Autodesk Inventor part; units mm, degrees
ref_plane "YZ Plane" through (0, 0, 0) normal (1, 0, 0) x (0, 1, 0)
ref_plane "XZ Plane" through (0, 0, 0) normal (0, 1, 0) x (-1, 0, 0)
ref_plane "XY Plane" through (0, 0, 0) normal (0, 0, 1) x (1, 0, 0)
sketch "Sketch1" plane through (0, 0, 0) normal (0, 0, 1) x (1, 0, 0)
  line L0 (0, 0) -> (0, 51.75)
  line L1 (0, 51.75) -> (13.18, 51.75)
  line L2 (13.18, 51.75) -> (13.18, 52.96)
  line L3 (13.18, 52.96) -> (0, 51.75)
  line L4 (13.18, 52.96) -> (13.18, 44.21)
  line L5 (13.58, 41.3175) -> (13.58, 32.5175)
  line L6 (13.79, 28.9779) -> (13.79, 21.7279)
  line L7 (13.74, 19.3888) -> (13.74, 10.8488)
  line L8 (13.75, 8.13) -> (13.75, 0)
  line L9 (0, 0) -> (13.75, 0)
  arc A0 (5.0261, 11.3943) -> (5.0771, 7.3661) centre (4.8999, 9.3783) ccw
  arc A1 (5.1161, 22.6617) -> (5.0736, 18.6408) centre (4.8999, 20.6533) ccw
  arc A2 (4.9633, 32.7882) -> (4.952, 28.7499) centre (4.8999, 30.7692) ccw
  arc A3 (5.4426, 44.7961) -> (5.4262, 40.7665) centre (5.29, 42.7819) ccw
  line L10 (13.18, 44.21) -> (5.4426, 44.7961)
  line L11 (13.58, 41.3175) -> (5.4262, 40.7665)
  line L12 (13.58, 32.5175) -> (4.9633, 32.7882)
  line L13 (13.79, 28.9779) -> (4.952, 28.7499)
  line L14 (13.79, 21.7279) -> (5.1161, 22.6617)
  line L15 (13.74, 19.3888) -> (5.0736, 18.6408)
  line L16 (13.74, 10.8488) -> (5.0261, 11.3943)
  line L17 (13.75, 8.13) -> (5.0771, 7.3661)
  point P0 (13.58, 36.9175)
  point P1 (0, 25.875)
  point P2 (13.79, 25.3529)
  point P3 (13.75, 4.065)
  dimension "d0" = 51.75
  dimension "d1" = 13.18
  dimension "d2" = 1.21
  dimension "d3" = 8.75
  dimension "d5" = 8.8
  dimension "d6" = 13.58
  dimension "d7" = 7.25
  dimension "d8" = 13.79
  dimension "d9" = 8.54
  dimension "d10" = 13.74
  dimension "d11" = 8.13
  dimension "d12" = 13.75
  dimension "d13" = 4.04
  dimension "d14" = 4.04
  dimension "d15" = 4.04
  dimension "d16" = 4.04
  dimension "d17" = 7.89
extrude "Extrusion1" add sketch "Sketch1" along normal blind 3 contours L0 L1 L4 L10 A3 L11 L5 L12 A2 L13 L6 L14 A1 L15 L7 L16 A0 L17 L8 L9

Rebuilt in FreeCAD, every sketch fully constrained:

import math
import FreeCAD as App
import Part
import Sketcher
from FreeCAD import Vector
Q = App.Units.Quantity

doc = App.newDocument("Part")
body = doc.addObject("PartDesign::Body", "Body")

# Sketch on XY plane
sketch1 = body.newObject("Sketcher::SketchObject", "Sketch")
sketch1.AttachmentSupport = (doc.getObject("XY_Plane"), [""])
sketch1.MapMode = "FlatFace"
sketch1.addGeometry(Part.LineSegment(Vector(0, 51.75, 0), Vector(0, 0, 0)), False)
sketch1.addGeometry(Part.LineSegment(Vector(0, 0, 0), Vector(13.75, 0, 0)), False)
sketch1.addGeometry(Part.LineSegment(Vector(13.75, 0, 0), Vector(13.75, 8.13, 0)), False)
sketch1.addGeometry(Part.LineSegment(Vector(13.75, 8.13, 0), Vector(5.0771, 7.3661, 0)), False)
sketch1.addGeometry(Part.ArcOfCircle(Part.Circle(Vector(4.8999, 9.3783, 0), Vector(0, 0, 1), 2.019946), math.radians(86.418004), math.radians(275.032645)), False)
sketch1.addGeometry(Part.LineSegment(Vector(5.0261, 11.3943, 0), Vector(13.74, 10.8488, 0)), False)
sketch1.addGeometry(Part.LineSegment(Vector(13.74, 10.8488, 0), Vector(13.74, 19.3888, 0)), False)
sketch1.addGeometry(Part.LineSegment(Vector(13.74, 19.3888, 0), Vector(5.0736, 18.6408, 0)), False)
sketch1.addGeometry(Part.ArcOfCircle(Part.Circle(Vector(4.8999, 20.6533, 0), Vector(0, 0, 1), 2.020003), math.radians(83.855891), math.radians(274.933006)), False)
sketch1.addGeometry(Part.LineSegment(Vector(5.1161, 22.6617, 0), Vector(13.79, 21.7279, 0)), False)
sketch1.addGeometry(Part.LineSegment(Vector(13.79, 21.7279, 0), Vector(13.79, 28.9779, 0)), False)
sketch1.addGeometry(Part.LineSegment(Vector(13.79, 28.9779, 0), Vector(4.952, 28.7499, 0)), False)
sketch1.addGeometry(Part.ArcOfCircle(Part.Circle(Vector(4.8999, 30.7692, 0), Vector(0, 0, 1), 2.019995), math.radians(88.201407), math.radians(271.477962)), False)
sketch1.addGeometry(Part.LineSegment(Vector(4.9633, 32.7882, 0), Vector(13.58, 32.5175, 0)), False)
sketch1.addGeometry(Part.LineSegment(Vector(13.58, 32.5175, 0), Vector(13.58, 41.3175, 0)), False)
sketch1.addGeometry(Part.LineSegment(Vector(13.58, 41.3175, 0), Vector(5.4262, 40.7665, 0)), False)
sketch1.addGeometry(Part.ArcOfCircle(Part.Circle(Vector(5.29, 42.7819, 0), Vector(0, 0, 1), 2.019972), math.radians(85.667429), math.radians(273.86615)), False)
sketch1.addGeometry(Part.LineSegment(Vector(5.4426, 44.7961, 0), Vector(13.18, 44.21, 0)), False)
sketch1.addGeometry(Part.LineSegment(Vector(13.18, 44.21, 0), Vector(13.18, 51.75, 0)), False)
sketch1.addGeometry(Part.LineSegment(Vector(13.18, 51.75, 0), Vector(0, 51.75, 0)), False)
sketch1.addConstraint(Sketcher.Constraint("Coincident", 0, 2, 1, 1))
sketch1.addConstraint(Sketcher.Constraint("Coincident", 1, 2, 2, 1))
sketch1.addConstraint(Sketcher.Constraint("Coincident", 2, 2, 3, 1))
sketch1.addConstraint(Sketcher.Constraint("Tangent", 3, 2, 4, 2))
sketch1.addConstraint(Sketcher.Constraint("Tangent", 4, 1, 5, 1))
sketch1.addConstraint(Sketcher.Constraint("Coincident", 5, 2, 6, 1))
sketch1.addConstraint(Sketcher.Constraint("Coincident", 6, 2, 7, 1))
sketch1.addConstraint(Sketcher.Constraint("Tangent", 7, 2, 8, 2))
sketch1.addConstraint(Sketcher.Constraint("Tangent", 8, 1, 9, 1))
sketch1.addConstraint(Sketcher.Constraint("Coincident", 9, 2, 10, 1))
sketch1.addConstraint(Sketcher.Constraint("Coincident", 10, 2, 11, 1))
sketch1.addConstraint(Sketcher.Constraint("Tangent", 11, 2, 12, 2))
sketch1.addConstraint(Sketcher.Constraint("Tangent", 12, 1, 13, 1))
sketch1.addConstraint(Sketcher.Constraint("Coincident", 13, 2, 14, 1))
sketch1.addConstraint(Sketcher.Constraint("Coincident", 14, 2, 15, 1))
sketch1.addConstraint(Sketcher.Constraint("Tangent", 15, 2, 16, 2))
sketch1.addConstraint(Sketcher.Constraint("Tangent", 16, 1, 17, 1))
sketch1.addConstraint(Sketcher.Constraint("Coincident", 17, 2, 18, 1))
sketch1.addConstraint(Sketcher.Constraint("Coincident", 18, 2, 19, 1))
sketch1.addConstraint(Sketcher.Constraint("Coincident", 19, 2, 0, 1))
sketch1.addConstraint(Sketcher.Constraint("Vertical", 0))
sketch1.addConstraint(Sketcher.Constraint("Horizontal", 1))
sketch1.addConstraint(Sketcher.Constraint("Vertical", 2))
sketch1.addConstraint(Sketcher.Constraint("Vertical", 6))
sketch1.addConstraint(Sketcher.Constraint("Vertical", 10))
sketch1.addConstraint(Sketcher.Constraint("Vertical", 14))
sketch1.addConstraint(Sketcher.Constraint("Vertical", 18))
sketch1.addConstraint(Sketcher.Constraint("Horizontal", 19))
sketch1.addConstraint(Sketcher.Constraint("Coincident", 0, 2, -1, 1))
sketch1.addConstraint(Sketcher.Constraint("Equal", 4, 8))
sketch1.addConstraint(Sketcher.Constraint("Equal", 8, 12))
sketch1.addConstraint(Sketcher.Constraint("Equal", 12, 16))
sketch1.addConstraint(Sketcher.Constraint("Vertical", 4, 3, 8, 3))
sketch1.addConstraint(Sketcher.Constraint("Vertical", 8, 3, 12, 3))
sketch1.addConstraint(Sketcher.Constraint("Radius", 4, 2.02))
sketch1.addConstraint(Sketcher.Constraint("DistanceY", 14, 1, 14, 2, 8.8))
sketch1.addConstraint(Sketcher.Constraint("DistanceX", 1, 1, 1, 2, 13.75))
sketch1.addConstraint(Sketcher.Constraint("DistanceX", 19, 2, 19, 1, 13.18))
sketch1.addConstraint(Sketcher.Constraint("DistanceY", 0, 2, 0, 1, 51.75))
sketch1.addConstraint(Sketcher.Constraint("DistanceY", 2, 1, 2, 2, 8.13))
sketch1.addConstraint(Sketcher.Constraint("DistanceY", 6, 1, 6, 2, 8.54))
sketch1.addConstraint(Sketcher.Constraint("DistanceY", 10, 1, 10, 2, 7.25))
sketch1.addConstraint(Sketcher.Constraint("DistanceX", -1, 1, 5, 2, 13.74))
sketch1.addConstraint(Sketcher.Constraint("DistanceX", -1, 1, 9, 2, 13.79))
sketch1.addConstraint(Sketcher.Constraint("DistanceX", -1, 1, 13, 2, 13.58))
sketch1.addConstraint(Sketcher.Constraint("DistanceX", 16, 3, 17, 2, 7.89))
sketch1.addConstraint(Sketcher.Constraint("Angle", 13, Q("-1.7994 deg")))
sketch1.addConstraint(Sketcher.Constraint("DistanceY", 18, 1, 18, 2, 7.54))
sketch1.addConstraint(Sketcher.Constraint("DistanceX", -1, 1, 4, 3, 4.9))
sketch1.addConstraint(Sketcher.Constraint("DistanceY", -1, 1, 11, 2, 28.75))
sketch1.addConstraint(Sketcher.Constraint("DistanceX", 4, 1, 8, 1, 0.09))
sketch1.addConstraint(Sketcher.Constraint("Distance", 5, 8.731))
sketch1.addConstraint(Sketcher.Constraint("Distance", 11, 8.841))
sketch1.addConstraint(Sketcher.Constraint("DistanceY", -1, 1, 16, 3, 42.782))
sketch1.addConstraint(Sketcher.Constraint("DistanceX", -1, 1, 3, 2, 5.077))
pad1 = body.newObject("PartDesign::Pad", "Pad")
pad1.Profile = sketch1
pad1.Length = 3

doc.recompute()
